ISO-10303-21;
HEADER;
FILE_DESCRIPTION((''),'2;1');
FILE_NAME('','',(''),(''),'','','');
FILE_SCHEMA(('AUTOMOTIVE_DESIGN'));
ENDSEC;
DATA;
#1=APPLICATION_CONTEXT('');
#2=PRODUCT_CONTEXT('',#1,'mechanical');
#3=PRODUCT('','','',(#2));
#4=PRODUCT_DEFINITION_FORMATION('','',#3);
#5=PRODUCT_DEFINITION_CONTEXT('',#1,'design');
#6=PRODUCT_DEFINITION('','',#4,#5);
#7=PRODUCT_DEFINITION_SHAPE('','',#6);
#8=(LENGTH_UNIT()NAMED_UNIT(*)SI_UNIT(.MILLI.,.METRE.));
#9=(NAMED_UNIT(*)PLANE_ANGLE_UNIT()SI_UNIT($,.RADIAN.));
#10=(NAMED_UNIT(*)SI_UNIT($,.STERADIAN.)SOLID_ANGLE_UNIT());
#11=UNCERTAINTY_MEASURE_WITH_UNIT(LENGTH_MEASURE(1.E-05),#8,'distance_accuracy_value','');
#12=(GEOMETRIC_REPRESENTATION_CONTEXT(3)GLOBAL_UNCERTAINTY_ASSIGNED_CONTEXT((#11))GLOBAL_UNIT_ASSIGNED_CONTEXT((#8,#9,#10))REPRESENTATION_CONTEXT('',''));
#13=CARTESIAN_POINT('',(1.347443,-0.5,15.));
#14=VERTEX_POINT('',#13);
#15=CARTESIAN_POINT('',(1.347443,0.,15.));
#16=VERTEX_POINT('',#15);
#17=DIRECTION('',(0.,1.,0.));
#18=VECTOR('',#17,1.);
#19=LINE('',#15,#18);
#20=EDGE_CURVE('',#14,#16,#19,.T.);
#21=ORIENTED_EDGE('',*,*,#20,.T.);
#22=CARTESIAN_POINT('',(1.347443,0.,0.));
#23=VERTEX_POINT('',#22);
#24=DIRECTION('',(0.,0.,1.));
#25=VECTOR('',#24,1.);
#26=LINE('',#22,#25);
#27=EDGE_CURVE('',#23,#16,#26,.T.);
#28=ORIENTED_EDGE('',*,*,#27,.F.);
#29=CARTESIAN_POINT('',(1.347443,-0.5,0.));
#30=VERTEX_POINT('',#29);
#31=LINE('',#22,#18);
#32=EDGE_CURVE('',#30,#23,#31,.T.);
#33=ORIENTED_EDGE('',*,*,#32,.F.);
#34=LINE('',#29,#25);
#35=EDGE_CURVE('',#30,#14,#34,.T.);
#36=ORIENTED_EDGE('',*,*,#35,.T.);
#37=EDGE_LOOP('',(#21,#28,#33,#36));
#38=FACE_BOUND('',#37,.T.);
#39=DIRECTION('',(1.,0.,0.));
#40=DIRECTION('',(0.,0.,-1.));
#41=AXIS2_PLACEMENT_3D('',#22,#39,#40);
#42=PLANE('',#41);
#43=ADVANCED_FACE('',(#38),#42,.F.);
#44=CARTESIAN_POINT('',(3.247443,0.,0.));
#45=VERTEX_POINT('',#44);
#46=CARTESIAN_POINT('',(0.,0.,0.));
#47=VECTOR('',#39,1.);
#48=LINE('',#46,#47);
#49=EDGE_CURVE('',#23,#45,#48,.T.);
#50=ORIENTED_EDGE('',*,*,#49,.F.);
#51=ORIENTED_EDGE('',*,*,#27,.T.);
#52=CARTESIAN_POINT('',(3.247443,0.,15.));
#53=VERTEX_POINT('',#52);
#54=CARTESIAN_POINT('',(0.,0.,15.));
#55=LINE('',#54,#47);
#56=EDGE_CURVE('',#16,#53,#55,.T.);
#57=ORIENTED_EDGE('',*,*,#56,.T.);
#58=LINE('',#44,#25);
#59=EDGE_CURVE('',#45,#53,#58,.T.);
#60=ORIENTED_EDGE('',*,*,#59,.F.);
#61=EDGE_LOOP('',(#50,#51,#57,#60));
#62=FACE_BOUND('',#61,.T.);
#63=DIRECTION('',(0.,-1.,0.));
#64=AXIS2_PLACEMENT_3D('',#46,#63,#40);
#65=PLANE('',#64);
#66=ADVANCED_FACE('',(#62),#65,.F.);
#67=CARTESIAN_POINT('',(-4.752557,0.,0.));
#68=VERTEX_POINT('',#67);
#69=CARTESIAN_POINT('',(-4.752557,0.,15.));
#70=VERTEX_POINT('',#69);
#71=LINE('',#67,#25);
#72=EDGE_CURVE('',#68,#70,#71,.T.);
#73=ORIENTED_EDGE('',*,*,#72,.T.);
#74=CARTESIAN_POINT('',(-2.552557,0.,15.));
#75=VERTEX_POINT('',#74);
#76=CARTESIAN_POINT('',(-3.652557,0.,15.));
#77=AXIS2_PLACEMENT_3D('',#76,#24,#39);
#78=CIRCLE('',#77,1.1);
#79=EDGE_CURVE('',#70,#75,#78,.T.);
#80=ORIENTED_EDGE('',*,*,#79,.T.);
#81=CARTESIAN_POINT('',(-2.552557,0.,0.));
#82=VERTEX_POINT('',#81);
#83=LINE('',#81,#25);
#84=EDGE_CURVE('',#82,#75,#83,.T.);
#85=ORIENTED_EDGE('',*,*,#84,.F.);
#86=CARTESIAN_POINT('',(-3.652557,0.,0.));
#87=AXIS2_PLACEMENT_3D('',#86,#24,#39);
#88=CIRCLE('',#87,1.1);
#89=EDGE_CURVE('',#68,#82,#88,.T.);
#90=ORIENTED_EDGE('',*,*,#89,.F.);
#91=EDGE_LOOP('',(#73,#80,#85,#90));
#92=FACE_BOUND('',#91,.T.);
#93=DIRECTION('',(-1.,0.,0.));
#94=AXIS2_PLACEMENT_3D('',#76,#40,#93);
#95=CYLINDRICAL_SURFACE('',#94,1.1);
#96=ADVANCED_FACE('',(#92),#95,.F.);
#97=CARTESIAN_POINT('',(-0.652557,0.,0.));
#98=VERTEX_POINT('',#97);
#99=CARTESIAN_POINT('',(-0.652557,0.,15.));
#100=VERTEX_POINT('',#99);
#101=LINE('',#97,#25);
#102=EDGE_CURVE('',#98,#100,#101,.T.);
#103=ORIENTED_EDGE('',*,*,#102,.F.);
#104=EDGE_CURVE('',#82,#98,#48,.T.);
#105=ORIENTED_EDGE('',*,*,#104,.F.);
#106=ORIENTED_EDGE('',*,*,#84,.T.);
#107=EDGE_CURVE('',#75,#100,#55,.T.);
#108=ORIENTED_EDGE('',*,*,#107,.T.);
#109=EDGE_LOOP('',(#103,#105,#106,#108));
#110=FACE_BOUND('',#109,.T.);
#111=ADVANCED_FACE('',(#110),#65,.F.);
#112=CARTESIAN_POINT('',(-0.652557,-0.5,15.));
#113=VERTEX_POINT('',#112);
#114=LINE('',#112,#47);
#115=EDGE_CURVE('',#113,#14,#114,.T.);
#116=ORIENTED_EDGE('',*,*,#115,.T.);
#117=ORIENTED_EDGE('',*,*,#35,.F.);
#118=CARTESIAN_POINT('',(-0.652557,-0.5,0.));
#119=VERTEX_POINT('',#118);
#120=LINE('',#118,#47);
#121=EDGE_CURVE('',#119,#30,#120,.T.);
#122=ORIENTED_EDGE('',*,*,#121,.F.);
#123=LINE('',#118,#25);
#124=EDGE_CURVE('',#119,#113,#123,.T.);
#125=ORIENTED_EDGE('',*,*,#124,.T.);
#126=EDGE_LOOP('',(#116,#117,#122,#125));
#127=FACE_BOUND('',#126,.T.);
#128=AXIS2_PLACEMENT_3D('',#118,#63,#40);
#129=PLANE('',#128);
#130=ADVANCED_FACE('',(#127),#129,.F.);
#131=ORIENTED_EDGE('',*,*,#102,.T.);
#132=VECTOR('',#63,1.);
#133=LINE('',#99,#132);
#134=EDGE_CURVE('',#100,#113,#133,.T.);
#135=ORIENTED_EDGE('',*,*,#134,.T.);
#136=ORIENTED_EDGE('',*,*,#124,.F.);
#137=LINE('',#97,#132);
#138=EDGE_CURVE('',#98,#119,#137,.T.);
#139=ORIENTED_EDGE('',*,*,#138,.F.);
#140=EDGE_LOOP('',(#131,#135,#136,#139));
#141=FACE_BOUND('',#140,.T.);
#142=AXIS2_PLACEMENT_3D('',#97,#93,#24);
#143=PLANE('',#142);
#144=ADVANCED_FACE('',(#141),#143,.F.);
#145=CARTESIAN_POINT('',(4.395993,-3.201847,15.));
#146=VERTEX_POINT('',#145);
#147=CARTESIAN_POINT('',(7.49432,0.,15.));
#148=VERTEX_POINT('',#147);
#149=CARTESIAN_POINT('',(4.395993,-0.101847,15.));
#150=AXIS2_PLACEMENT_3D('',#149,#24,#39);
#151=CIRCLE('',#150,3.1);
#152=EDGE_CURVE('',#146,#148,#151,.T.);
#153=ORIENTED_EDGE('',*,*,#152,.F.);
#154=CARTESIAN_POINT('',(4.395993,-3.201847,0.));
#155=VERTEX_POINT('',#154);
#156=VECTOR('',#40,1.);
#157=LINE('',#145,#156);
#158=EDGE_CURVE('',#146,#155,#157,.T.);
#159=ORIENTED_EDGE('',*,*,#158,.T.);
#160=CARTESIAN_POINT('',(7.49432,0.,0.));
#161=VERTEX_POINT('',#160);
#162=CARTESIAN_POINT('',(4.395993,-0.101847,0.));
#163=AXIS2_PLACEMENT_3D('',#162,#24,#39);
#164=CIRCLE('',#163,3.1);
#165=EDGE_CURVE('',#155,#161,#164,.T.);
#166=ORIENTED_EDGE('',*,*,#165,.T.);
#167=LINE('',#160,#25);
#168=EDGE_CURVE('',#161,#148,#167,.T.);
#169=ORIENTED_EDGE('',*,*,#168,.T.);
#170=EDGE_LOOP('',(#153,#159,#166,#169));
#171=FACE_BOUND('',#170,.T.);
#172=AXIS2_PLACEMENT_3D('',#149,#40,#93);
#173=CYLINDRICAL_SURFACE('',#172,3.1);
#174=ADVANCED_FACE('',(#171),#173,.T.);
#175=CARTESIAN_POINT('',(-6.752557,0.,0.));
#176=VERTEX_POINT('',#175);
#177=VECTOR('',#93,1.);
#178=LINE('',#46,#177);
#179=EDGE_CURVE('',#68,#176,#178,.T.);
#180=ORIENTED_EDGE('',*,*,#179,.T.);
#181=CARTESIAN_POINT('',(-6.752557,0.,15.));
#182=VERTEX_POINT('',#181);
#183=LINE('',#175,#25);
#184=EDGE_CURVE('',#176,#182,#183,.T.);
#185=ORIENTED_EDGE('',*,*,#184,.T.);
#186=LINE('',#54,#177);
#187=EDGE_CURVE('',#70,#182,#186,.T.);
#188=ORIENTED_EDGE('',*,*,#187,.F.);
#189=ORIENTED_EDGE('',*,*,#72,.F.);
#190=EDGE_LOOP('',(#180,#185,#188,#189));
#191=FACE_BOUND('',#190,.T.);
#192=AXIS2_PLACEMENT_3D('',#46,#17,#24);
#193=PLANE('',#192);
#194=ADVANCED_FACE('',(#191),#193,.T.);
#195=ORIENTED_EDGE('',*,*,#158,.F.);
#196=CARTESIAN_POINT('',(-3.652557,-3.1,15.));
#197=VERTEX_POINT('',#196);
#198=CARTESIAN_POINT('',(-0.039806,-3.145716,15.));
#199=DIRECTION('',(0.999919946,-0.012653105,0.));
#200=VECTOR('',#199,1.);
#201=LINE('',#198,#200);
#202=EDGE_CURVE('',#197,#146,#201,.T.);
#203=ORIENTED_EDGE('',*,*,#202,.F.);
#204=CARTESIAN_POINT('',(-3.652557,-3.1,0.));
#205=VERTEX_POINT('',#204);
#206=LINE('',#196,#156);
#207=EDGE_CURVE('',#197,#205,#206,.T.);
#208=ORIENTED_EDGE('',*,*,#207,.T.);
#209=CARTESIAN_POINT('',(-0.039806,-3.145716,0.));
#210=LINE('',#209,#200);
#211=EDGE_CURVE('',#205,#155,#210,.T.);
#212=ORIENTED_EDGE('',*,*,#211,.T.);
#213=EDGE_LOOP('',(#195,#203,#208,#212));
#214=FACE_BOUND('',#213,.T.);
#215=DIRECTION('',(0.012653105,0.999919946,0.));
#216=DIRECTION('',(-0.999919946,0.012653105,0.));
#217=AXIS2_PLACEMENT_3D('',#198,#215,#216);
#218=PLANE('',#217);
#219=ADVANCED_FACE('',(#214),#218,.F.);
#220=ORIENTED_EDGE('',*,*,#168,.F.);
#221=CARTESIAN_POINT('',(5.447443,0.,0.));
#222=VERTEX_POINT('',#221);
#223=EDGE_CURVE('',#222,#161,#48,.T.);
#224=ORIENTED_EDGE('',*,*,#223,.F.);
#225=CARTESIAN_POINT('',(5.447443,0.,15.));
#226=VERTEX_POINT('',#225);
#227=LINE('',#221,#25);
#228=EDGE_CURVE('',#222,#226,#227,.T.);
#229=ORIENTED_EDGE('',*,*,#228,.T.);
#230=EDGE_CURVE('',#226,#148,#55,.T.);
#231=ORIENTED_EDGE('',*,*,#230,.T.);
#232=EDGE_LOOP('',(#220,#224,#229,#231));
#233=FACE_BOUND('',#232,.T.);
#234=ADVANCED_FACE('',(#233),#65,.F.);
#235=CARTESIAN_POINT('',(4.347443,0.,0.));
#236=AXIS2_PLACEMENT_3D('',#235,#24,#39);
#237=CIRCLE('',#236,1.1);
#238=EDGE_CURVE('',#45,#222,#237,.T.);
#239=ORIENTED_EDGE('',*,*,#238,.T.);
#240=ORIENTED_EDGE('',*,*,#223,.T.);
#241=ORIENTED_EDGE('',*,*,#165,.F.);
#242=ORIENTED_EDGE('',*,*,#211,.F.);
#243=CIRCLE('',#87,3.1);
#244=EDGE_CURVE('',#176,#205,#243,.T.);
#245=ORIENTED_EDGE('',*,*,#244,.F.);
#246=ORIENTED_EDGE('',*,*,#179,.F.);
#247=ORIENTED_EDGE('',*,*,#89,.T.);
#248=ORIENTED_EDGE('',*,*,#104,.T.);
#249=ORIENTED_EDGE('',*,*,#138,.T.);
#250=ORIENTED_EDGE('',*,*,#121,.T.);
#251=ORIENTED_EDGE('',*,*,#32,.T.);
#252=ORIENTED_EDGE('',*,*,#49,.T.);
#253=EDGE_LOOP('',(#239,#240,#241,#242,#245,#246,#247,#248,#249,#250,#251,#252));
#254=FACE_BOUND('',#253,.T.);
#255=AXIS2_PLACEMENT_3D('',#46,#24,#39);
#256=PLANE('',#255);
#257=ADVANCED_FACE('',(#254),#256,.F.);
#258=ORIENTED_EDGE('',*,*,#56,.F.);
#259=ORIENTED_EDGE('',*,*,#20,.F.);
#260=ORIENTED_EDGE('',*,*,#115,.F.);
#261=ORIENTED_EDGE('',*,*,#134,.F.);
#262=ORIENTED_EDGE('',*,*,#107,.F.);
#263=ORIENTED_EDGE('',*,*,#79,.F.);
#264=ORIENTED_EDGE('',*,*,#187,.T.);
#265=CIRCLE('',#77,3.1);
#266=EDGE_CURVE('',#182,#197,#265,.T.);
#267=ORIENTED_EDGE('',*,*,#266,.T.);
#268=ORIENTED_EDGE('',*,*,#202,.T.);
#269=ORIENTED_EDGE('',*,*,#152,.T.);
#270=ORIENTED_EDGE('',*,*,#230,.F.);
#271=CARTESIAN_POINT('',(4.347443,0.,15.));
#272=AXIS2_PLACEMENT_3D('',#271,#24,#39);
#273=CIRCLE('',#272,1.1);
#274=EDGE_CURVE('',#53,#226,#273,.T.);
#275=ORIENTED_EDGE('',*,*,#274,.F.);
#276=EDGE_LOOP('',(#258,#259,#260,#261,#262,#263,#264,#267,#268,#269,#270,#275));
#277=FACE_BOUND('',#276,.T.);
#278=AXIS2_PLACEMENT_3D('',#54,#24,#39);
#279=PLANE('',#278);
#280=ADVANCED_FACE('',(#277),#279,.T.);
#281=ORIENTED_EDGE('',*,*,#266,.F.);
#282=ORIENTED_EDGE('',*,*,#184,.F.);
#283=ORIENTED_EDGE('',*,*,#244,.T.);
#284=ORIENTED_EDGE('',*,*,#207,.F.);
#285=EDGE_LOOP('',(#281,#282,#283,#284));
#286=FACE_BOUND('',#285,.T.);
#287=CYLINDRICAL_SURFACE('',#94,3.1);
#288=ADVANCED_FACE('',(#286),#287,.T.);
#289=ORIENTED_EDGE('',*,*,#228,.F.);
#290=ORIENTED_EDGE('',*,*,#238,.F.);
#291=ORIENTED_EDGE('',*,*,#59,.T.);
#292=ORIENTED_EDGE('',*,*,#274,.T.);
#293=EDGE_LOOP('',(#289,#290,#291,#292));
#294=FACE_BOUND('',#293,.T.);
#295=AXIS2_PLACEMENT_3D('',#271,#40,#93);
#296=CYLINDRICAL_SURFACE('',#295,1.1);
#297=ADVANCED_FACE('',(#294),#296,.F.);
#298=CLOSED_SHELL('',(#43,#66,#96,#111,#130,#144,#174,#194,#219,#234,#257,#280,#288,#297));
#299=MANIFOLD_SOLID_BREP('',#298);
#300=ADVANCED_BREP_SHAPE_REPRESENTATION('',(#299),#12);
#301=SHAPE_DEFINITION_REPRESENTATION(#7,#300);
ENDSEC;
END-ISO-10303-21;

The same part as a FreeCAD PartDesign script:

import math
import FreeCAD as App
import Part
import Sketcher

V = App.Vector

doc = App.newDocument("Part")
body = doc.addObject("PartDesign::Body", "Body")

sketch1 = body.newObject("Sketcher::SketchObject", "Sketch")
sketch1.AttachmentSupport = (doc.getObject("XY_Plane"), [""])
sketch1.MapMode = "FlatFace"
sketch1.addGeometry([
    Part.LineSegment(V(-1.6, 5, 0), V(-5.3, 2.6, 0)),
    Part.ArcOfCircle(Part.Circle(V(-3.7, 0, 0), V(0, 0, 1), 3.1), math.radians(123), math.radians(270)),
    Part.LineSegment(V(-3.7, -3.1, 0), V(4.4, -3.2, 0)),
    Part.ArcOfCircle(Part.Circle(V(4.4, -0.1, 0), V(0, 0, 1), 3.1), math.radians(-90), math.radians(56)),
    Part.LineSegment(V(6.1, 2.5, 0), V(2.3, 5, 0)),
    Part.ArcOfCircle(Part.Circle(V(0.3, 2, 0), V(0, 0, 1), 3.6), math.radians(56), math.radians(123)),
    Part.Circle(V(-3.7, 0, 0), V(0, 0, 1), 1.1),
    Part.Circle(V(4.3, 0, 0), V(0, 0, 1), 1.1),
    Part.Circle(V(0.3, 2, 0), V(0, 0, 1), 1.6),
], False)
sketch1.addConstraint([
    Sketcher.Constraint("Tangent", 0, 2, 1, 1),
    Sketcher.Constraint("Coincident", 1, 2, 2, 1),
    Sketcher.Constraint("Coincident", 2, 2, 3, 1),
    Sketcher.Constraint("Tangent", 3, 2, 4, 1),
    Sketcher.Constraint("Tangent", 4, 2, 5, 1),
    Sketcher.Constraint("Tangent", 5, 2, 0, 1),
    Sketcher.Constraint("Coincident", 6, 3, 1, 3),
    Sketcher.Constraint("Coincident", 8, 3, 5, 3),
    Sketcher.Constraint("Equal", 1, 3),
    Sketcher.Constraint("Equal", 6, 7),
    Sketcher.Constraint("PointOnObject", 1, 3, -1),
    Sketcher.Constraint("PointOnObject", 7, 3, -1),
    Sketcher.Constraint("Vertical", 6, 3, 1, 2),
    Sketcher.Constraint("Vertical", 3, 3, 2, 2),
    Sketcher.Constraint("Diameter", 6, 2.2),
    Sketcher.Constraint("Diameter", 8, 3.2),
    Sketcher.Constraint("Radius", 1, 3.1),
    Sketcher.Constraint("Radius", 5, 3.6),
    Sketcher.Constraint("DistanceY", -1, 1, 5, 3, 2.0),
    Sketcher.Constraint("DistanceX", 1, 3, 5, 3, 4.0),
    Sketcher.Constraint("DistanceX", 5, 3, 7, 3, 4.0),
    Sketcher.Constraint("Distance", 4, 4.534151),
    Sketcher.Constraint("DistanceY", -1, 1, 3, 2, 2.476328),
    Sketcher.Constraint("DistanceX", -1, 1, 4, 2, 2.346418),
])
pad1 = body.newObject("PartDesign::Pad", "Pad")
pad1.Profile = sketch1
pad1.Length = 15

sketch2 = body.newObject("Sketcher::SketchObject", "Sketch001")
sketch2.AttachmentSupport = (doc.getObject("XY_Plane"), [""])
sketch2.MapMode = "FlatFace"
sketch2.AttachmentOffset = App.Placement(V(0, 0, 15), App.Rotation())
sketch2.addGeometry([
    Part.ArcOfCircle(Part.Circle(V(-3.7, 0, 0), V(0, 0, 1), 1.1), math.radians(0), math.radians(180)),
    Part.LineSegment(V(-2.6, 0, 0), V(3.2, 0, 0)),
    Part.ArcOfCircle(Part.Circle(V(4.3, 0, 0), V(0, 0, 1), 1.1), math.radians(0), math.radians(180)),
    Part.LineSegment(V(5.4, 0, 0), V(7.5, 0, 0)),
    Part.ArcOfCircle(Part.Circle(V(4.4, -0.1, 0), V(0, 0, 1), 3.1), math.radians(2), math.radians(56)),
    Part.LineSegment(V(6.1, 2.5, 0), V(2.3, 5, 0)),
    Part.ArcOfCircle(Part.Circle(V(0.3, 2, 0), V(0, 0, 1), 3.6), math.radians(56), math.radians(123)),
    Part.LineSegment(V(-1.6, 5, 0), V(-5.3, 2.6, 0)),
    Part.ArcOfCircle(Part.Circle(V(-3.7, 0, 0), V(0, 0, 1), 3.1), math.radians(123), math.radians(180)),
    Part.LineSegment(V(-6.8, 0, 0), V(-4.8, 0, 0)),
    Part.Circle(V(0.3, 2, 0), V(0, 0, 1), 1.6),
], False)
sketch2.addConstraint([
    Sketcher.Constraint("Coincident", 0, 1, 1, 1),
    Sketcher.Constraint("Coincident", 1, 2, 2, 2),
    Sketcher.Constraint("Coincident", 2, 1, 3, 1),
    Sketcher.Constraint("Coincident", 3, 2, 4, 1),
    Sketcher.Constraint("Tangent", 4, 2, 5, 1),
    Sketcher.Constraint("Tangent", 5, 2, 6, 1),
    Sketcher.Constraint("Tangent", 6, 2, 7, 1),
    Sketcher.Constraint("Tangent", 7, 2, 8, 1),
    Sketcher.Constraint("Coincident", 8, 2, 9, 1),
    Sketcher.Constraint("Coincident", 9, 2, 0, 2),
    Sketcher.Constraint("Horizontal", 1),
    Sketcher.Constraint("Horizontal", 3),
    Sketcher.Constraint("Horizontal", 9),
    Sketcher.Constraint("Coincident", 8, 3, 0, 3),
    Sketcher.Constraint("Coincident", 10, 3, 6, 3),
    Sketcher.Constraint("Equal", 0, 2),
    Sketcher.Constraint("Equal", 4, 8),
    Sketcher.Constraint("PointOnObject", 0, 3, -1),
    Sketcher.Constraint("PointOnObject", 2, 3, -1),
    Sketcher.Constraint("PointOnObject", 0, 1, -1),
    Sketcher.Constraint("PointOnObject", 2, 1, -1),
    Sketcher.Constraint("PointOnObject", 8, 2, -1),
    Sketcher.Constraint("Diameter", 10, 3.2),
    Sketcher.Constraint("Radius", 0, 1.1),
    Sketcher.Constraint("Radius", 4, 3.1),
    Sketcher.Constraint("Radius", 6, 3.6),
    Sketcher.Constraint("DistanceX", 1, 1, 1, 2, 5.8),
    Sketcher.Constraint("DistanceY", -1, 1, 6, 3, 2.0),
    Sketcher.Constraint("DistanceX", 6, 3, 2, 3, 4.0),
    Sketcher.Constraint("Distance", 5, 4.534151),
    Sketcher.Constraint("DistanceX", 3, 1, 3, 2, 2.046877),
    Sketcher.Constraint("DistanceX", -1, 1, 3, 2, 7.49432),
])
pocket1 = body.newObject("PartDesign::Pocket", "Pocket")
pocket1.Profile = sketch2
pocket1.Length = 15

sketch3 = body.newObject("Sketcher::SketchObject", "Sketch002")
sketch3.AttachmentSupport = (doc.getObject("XY_Plane"), [""])
sketch3.MapMode = "FlatFace"
sketch3.AttachmentOffset = App.Placement(V(0, 0, 15), App.Rotation())
sketch3.addGeometry([
    Part.LineSegment(V(-0.7, 0, 0), V(-0.7, -0.5, 0)),
    Part.LineSegment(V(-0.7, -0.5, 0), V(1.3, -0.5, 0)),
    Part.LineSegment(V(1.3, -0.5, 0), V(1.3, 0, 0)),
    Part.LineSegment(V(1.3, 0, 0), V(-0.7, 0, 0)),
], False)
sketch3.addConstraint([
    Sketcher.Constraint("Coincident", 0, 2, 1, 1),
    Sketcher.Constraint("Coincident", 1, 2, 2, 1),
    Sketcher.Constraint("Coincident", 2, 2, 3, 1),
    Sketcher.Constraint("Coincident", 3, 2, 0, 1),
    Sketcher.Constraint("Vertical", 0),
    Sketcher.Constraint("Horizontal", 1),
    Sketcher.Constraint("Vertical", 2),
    Sketcher.Constraint("Horizontal", 3),
    Sketcher.Constraint("PointOnObject", 2, 2, -1),
    Sketcher.Constraint("DistanceX", 1, 1, 1, 2, 2.0),
    Sketcher.Constraint("DistanceY", 0, 2, 0, 1, 0.5),
    Sketcher.Constraint("DistanceX", 0, 2, -1, 1, 0.652557),
])
pocket2 = body.newObject("PartDesign::Pocket", "Pocket001")
pocket2.Profile = sketch3
pocket2.Type = "ThroughAll"

doc.recompute()
